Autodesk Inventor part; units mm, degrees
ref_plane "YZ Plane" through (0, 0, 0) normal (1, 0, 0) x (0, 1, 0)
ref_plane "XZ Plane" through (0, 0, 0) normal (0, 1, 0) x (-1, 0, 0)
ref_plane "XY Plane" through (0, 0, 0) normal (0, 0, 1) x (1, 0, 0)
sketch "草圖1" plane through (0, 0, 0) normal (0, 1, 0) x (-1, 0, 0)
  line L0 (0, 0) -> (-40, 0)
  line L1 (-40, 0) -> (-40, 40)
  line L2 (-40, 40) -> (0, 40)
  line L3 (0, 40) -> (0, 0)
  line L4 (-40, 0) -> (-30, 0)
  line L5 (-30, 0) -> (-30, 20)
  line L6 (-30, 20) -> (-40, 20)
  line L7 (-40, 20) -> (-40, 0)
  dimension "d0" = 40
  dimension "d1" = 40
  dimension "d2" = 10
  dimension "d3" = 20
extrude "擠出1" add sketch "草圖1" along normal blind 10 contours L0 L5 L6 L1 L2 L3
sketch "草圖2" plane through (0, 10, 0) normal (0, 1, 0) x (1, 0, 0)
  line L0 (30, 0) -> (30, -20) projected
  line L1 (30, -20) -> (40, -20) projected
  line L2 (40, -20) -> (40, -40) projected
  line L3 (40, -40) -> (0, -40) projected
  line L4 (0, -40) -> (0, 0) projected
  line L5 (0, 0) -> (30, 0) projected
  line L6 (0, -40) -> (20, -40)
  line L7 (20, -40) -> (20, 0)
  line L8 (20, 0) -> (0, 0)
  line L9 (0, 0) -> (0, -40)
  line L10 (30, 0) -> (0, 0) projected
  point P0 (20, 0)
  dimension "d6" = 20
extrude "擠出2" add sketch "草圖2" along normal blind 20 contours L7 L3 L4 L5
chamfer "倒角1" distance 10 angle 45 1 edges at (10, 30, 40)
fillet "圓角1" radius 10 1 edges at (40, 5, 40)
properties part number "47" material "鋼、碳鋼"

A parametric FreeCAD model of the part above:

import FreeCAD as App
import Part
import Sketcher


def edges_at(feature, points):
    """Names of the edges that pass closest to the given points."""
    edges = feature.Shape.Edges
    near = lambda p: min(range(len(edges)), key=lambda i: edges[i].distToShape(Part.Vertex(*p))[0])
    return sorted({f"Edge{near(p) + 1}" for p in points})

doc = App.newDocument("Part")
body = doc.addObject("PartDesign::Body", "Body")

# Sketch on XZ plane
sketch1 = body.newObject("Sketcher::SketchObject", "Sketch")
sketch1.AttachmentSupport = (doc.getObject("XZ_Plane"), [""])
sketch1.MapMode = "FlatFace"
sketch1.addGeometry([
    Part.LineSegment(App.Vector(30, 0, 0), App.Vector(0, 0, 0)),  # 0
    Part.LineSegment(App.Vector(0, 0, 0), App.Vector(0, 40, 0)),  # 1
    Part.LineSegment(App.Vector(0, 40, 0), App.Vector(40, 40, 0)),  # 2
    Part.LineSegment(App.Vector(40, 40, 0), App.Vector(40, 20, 0)),  # 3
    Part.LineSegment(App.Vector(40, 20, 0), App.Vector(30, 20, 0)),  # 4
    Part.LineSegment(App.Vector(30, 20, 0), App.Vector(30, 0, 0)),  # 5
], False)
sketch1.addConstraint([
    Sketcher.Constraint("Coincident", 0, 2, 1, 1),
    Sketcher.Constraint("Coincident", 1, 2, 2, 1),
    Sketcher.Constraint("Coincident", 2, 2, 3, 1),
    Sketcher.Constraint("Coincident", 3, 2, 4, 1),
    Sketcher.Constraint("Coincident", 4, 2, 5, 1),
    Sketcher.Constraint("Coincident", 5, 2, 0, 1),
    Sketcher.Constraint("Horizontal", 0),
    Sketcher.Constraint("Vertical", 1),
    Sketcher.Constraint("Horizontal", 2),
    Sketcher.Constraint("Vertical", 3),
    Sketcher.Constraint("Horizontal", 4),
    Sketcher.Constraint("Vertical", 5),
    Sketcher.Constraint("Coincident", 0, 2, -1, 1),
    Sketcher.Constraint("Equal", 2, 1),
    Sketcher.Constraint("Equal", 3, 5),
    Sketcher.Constraint("DistanceX", 2, 1, 2, 2, 40.0),
    Sketcher.Constraint("DistanceX", 4, 2, 4, 1, 10.0),
])
pad1 = body.newObject("PartDesign::Pad", "Pad")
pad1.Profile = sketch1
pad1.Length = 10
pad1.Reversed = True

# Sketch on XZ plane
sketch2 = body.newObject("Sketcher::SketchObject", "Sketch001")
sketch2.AttachmentSupport = (doc.getObject("XZ_Plane"), [""])
sketch2.MapMode = "FlatFace"
sketch2.AttachmentOffset = App.Placement(App.Vector(0, 0, -10), App.Rotation())
sketch2.addGeometry([
    Part.LineSegment(App.Vector(20, 40, 0), App.Vector(20, 0, 0)),
    Part.LineSegment(App.Vector(20, 0, 0), App.Vector(0, 0, 0)),
    Part.LineSegment(App.Vector(0, 0, 0), App.Vector(0, 40, 0)),
    Part.LineSegment(App.Vector(0, 40, 0), App.Vector(20, 40, 0)),
], False)
sketch2.addConstraint([
    Sketcher.Constraint("Coincident", 0, 2, 1, 1),
    Sketcher.Constraint("Coincident", 1, 2, 2, 1),
    Sketcher.Constraint("Coincident", 2, 2, 3, 1),
    Sketcher.Constraint("Coincident", 3, 2, 0, 1),
    Sketcher.Constraint("Vertical", 0),
    Sketcher.Constraint("Horizontal", 1),
    Sketcher.Constraint("Vertical", 2),
    Sketcher.Constraint("Horizontal", 3),
    Sketcher.Constraint("Coincident", 1, 2, -1, 1),
    Sketcher.Constraint("DistanceX", 1, 2, 1, 1, 20.0),
    Sketcher.Constraint("DistanceY", 0, 2, 0, 1, 40.0),
])
pad2 = body.newObject("PartDesign::Pad", "Pad001")
pad2.Profile = sketch2
pad2.Length = 20
pad2.Reversed = True
doc.recompute()

chamfer = body.newObject("PartDesign::Chamfer", "Chamfer")
chamfer.Base = (pad2, edges_at(pad2, [(10, 30, 40)]))
chamfer.Size = 10
doc.recompute()

fillet = body.newObject("PartDesign::Fillet", "Fillet")
fillet.Base = (chamfer, edges_at(chamfer, [(40, 5, 40)]))
fillet.Radius = 10

doc.recompute()
